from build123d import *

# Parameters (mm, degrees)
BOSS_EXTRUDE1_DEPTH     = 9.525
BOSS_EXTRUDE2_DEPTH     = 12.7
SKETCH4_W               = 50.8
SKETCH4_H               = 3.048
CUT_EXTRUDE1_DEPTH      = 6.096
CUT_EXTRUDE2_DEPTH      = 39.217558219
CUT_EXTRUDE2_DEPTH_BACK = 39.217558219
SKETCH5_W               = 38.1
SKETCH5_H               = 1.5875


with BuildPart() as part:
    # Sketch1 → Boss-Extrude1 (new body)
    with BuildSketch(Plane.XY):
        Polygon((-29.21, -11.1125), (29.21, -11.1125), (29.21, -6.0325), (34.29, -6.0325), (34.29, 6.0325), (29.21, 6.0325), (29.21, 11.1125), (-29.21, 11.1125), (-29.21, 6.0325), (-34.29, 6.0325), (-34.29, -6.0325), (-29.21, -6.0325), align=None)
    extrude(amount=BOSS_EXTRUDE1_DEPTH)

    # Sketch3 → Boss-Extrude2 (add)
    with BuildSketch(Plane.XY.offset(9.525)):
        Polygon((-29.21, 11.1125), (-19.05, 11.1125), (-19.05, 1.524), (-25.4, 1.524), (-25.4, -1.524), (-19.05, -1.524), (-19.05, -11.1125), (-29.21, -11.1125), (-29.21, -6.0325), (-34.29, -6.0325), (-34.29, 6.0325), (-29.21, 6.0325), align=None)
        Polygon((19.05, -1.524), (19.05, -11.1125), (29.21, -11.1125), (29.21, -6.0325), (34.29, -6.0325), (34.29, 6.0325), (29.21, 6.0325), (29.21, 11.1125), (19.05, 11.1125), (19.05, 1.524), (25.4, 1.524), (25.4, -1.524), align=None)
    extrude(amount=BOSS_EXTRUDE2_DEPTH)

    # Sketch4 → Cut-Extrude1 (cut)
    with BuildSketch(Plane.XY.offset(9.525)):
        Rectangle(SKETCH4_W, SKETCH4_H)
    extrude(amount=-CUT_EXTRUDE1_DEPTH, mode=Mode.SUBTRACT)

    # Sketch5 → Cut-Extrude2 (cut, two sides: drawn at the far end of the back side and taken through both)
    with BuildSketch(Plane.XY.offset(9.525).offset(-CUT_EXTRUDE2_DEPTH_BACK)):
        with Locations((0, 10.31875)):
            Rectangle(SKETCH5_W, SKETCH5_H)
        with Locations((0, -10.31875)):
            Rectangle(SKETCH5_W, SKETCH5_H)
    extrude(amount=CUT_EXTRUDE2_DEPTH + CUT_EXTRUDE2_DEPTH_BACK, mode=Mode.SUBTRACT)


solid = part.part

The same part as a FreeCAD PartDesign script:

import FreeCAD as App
import Part
import Sketcher
Q = App.Units.Quantity


def add_polygon(sketch, points):
    """Adds a closed chain of lines whose ends are joined by coincident constraints."""
    first, n = sketch.GeometryCount, len(points)
    for a, b in zip(points, points[1:] + points[:1]):
        sketch.addGeometry(Part.LineSegment(App.Vector(*a, 0), App.Vector(*b, 0)), False)
    for i in range(n):
        sketch.addConstraint(Sketcher.Constraint("Coincident", first + i, 2, first + (i + 1) % n, 1))

doc = App.newDocument("Part")
body = doc.addObject("PartDesign::Body", "Body")

sketch1 = body.newObject("Sketcher::SketchObject", "Sketch")
sketch1.AttachmentSupport = (doc.getObject("XY_Plane"), [""])
sketch1.MapMode = "FlatFace"
add_polygon(sketch1, [(-29, -11), (29, -11), (29, -6), (34, -6), (34, 6), (29, 6), (29, 11), (-29, 11), (-29, 6), (-34, 6), (-34, -6), (-29, -6)])
sketch1.addConstraint(Sketcher.Constraint("Horizontal", 0))
sketch1.addConstraint(Sketcher.Constraint("Vertical", 1))
sketch1.addConstraint(Sketcher.Constraint("Horizontal", 2))
sketch1.addConstraint(Sketcher.Constraint("Vertical", 3))
sketch1.addConstraint(Sketcher.Constraint("Horizontal", 4))
sketch1.addConstraint(Sketcher.Constraint("Vertical", 5))
sketch1.addConstraint(Sketcher.Constraint("Horizontal", 6))
sketch1.addConstraint(Sketcher.Constraint("Vertical", 7))
sketch1.addConstraint(Sketcher.Constraint("Horizontal", 8))
sketch1.addConstraint(Sketcher.Constraint("Vertical", 9))
sketch1.addConstraint(Sketcher.Constraint("Horizontal", 10))
sketch1.addConstraint(Sketcher.Constraint("Vertical", 11))
sketch1.addConstraint(Sketcher.Constraint("Symmetric", 0, 2, 6, 2, -1, 1))
sketch1.addConstraint(Sketcher.Constraint("Symmetric", 2, 2, 8, 2, -1, 1))
sketch1.addConstraint(Sketcher.Constraint("Symmetric", 4, 2, 10, 2, -1, 1))
sketch1.addConstraint(Sketcher.Constraint("Symmetric", 4, 2, 7, 2, -2))
sketch1.addConstraint(Sketcher.Constraint("Equal", 10, 1))
sketch1.addConstraint(Sketcher.Constraint("DistanceX", 0, 1, 0, 2, Q("2.3 in")))
sketch1.addConstraint(Sketcher.Constraint("DistanceX", 2, 1, 2, 2, Q("0.2 in")))
sketch1.addConstraint(Sketcher.Constraint("DistanceY", 3, 1, 3, 2, Q("0.475 in")))
pad1 = body.newObject("PartDesign::Pad", "Pad")
pad1.Profile = sketch1
pad1.Length = Q("0.375 in")

sketch2 = body.newObject("Sketcher::SketchObject", "Sketch001")
sketch2.AttachmentSupport = (doc.getObject("XY_Plane"), [""])
sketch2.MapMode = "FlatFace"
sketch2.AttachmentOffset = App.Placement(App.Vector(0, 0, 0.375 * 25.4), App.Rotation())
add_polygon(sketch2, [(-19.1, 11.1), (-29.2, 11.1), (-29.2, 6), (-34.3, 6), (-34.3, -6), (-29.2, -6), (-29.2, -11.1), (-19.1, -11.1), (-19.1, -1.5), (-25.4, -1.5), (-25.4, 1.5), (-19.1, 1.5)])
add_polygon(sketch2, [(19.1, -1.5), (19.1, -11.1), (29.2, -11.1), (29.2, -6), (34.3, -6), (34.3, 6), (29.2, 6), (29.2, 11.1), (19.1, 11.1), (19.1, 1.5), (25.4, 1.5), (25.4, -1.5)])
sketch2.addConstraint(Sketcher.Constraint("Horizontal", 0))
sketch2.addConstraint(Sketcher.Constraint("Vertical", 1))
sketch2.addConstraint(Sketcher.Constraint("Horizontal", 2))
sketch2.addConstraint(Sketcher.Constraint("Vertical", 3))
sketch2.addConstraint(Sketcher.Constraint("Horizontal", 4))
sketch2.addConstraint(Sketcher.Constraint("Vertical", 5))
sketch2.addConstraint(Sketcher.Constraint("Horizontal", 6))
sketch2.addConstraint(Sketcher.Constraint("Vertical", 7))
sketch2.addConstraint(Sketcher.Constraint("Horizontal", 8))
sketch2.addConstraint(Sketcher.Constraint("Vertical", 9))
sketch2.addConstraint(Sketcher.Constraint("Horizontal", 10))
sketch2.addConstraint(Sketcher.Constraint("Vertical", 11))
sketch2.addConstraint(Sketcher.Constraint("Vertical", 12))
sketch2.addConstraint(Sketcher.Constraint("Horizontal", 13))
sketch2.addConstraint(Sketcher.Constraint("Vertical", 14))
sketch2.addConstraint(Sketcher.Constraint("Horizontal", 15))
sketch2.addConstraint(Sketcher.Constraint("Vertical", 16))
sketch2.addConstraint(Sketcher.Constraint("Horizontal", 17))
sketch2.addConstraint(Sketcher.Constraint("Vertical", 18))
sketch2.addConstraint(Sketcher.Constraint("Horizontal", 19))
sketch2.addConstraint(Sketcher.Constraint("Vertical", 20))
sketch2.addConstraint(Sketcher.Constraint("Horizontal", 21))
sketch2.addConstraint(Sketcher.Constraint("Vertical", 22))
sketch2.addConstraint(Sketcher.Constraint("Horizontal", 23))
sketch2.addConstraint(Sketcher.Constraint("Symmetric", 11, 2, 12, 2, -1, 1))
sketch2.addConstraint(Sketcher.Constraint("Symmetric", 1, 2, 14, 2, -1, 1))
sketch2.addConstraint(Sketcher.Constraint("Symmetric", 3, 2, 16, 2, -1, 1))
sketch2.addConstraint(Sketcher.Constraint("Symmetric", 5, 2, 18, 2, -1, 1))
sketch2.addConstraint(Sketcher.Constraint("Symmetric", 7, 2, 20, 2, -1, 1))
sketch2.addConstraint(Sketcher.Constraint("Symmetric", 9, 2, 22, 2, -1, 1))
sketch2.addConstraint(Sketcher.Constraint("Symmetric", 6, 2, 12, 2, -2))
sketch2.addConstraint(Sketcher.Constraint("Symmetric", 4, 2, 14, 2, -2))
sketch2.addConstraint(Sketcher.Constraint("Horizontal", 10, 2, 20, 2))
sketch2.addConstraint(Sketcher.Constraint("Equal", 17, 1))
sketch2.addConstraint(Sketcher.Constraint("DistanceX", 0, 2, 0, 1, Q("0.4 in")))
sketch2.addConstraint(Sketcher.Constraint("DistanceX", 2, 2, 2, 1, Q("0.2 in")))
sketch2.addConstraint(Sketcher.Constraint("DistanceX", 8, 2, -1, 1, Q("1 in")))
sketch2.addConstraint(Sketcher.Constraint("DistanceX", 8, 2, 8, 1, Q("0.25 in")))
sketch2.addConstraint(Sketcher.Constraint("DistanceY", 9, 1, 9, 2, Q("0.12 in")))
sketch2.addConstraint(Sketcher.Constraint("DistanceY", 3, 2, 3, 1, Q("0.475 in")))
pad2 = body.newObject("PartDesign::Pad", "Pad001")
pad2.Profile = sketch2
pad2.Length = Q("0.5 in")

sketch3 = body.newObject("Sketcher::SketchObject", "Sketch002")
sketch3.AttachmentSupport = (doc.getObject("XY_Plane"), [""])
sketch3.MapMode = "FlatFace"
sketch3.AttachmentOffset = App.Placement(App.Vector(0, 0, 0.375 * 25.4), App.Rotation())
add_polygon(sketch3, [(-25.4, 1.5), (-25.4, -1.5), (25.4, -1.5), (25.4, 1.5)])
sketch3.addConstraint(Sketcher.Constraint("Vertical", 0))
sketch3.addConstraint(Sketcher.Constraint("Horizontal", 1))
sketch3.addConstraint(Sketcher.Constraint("Vertical", 2))
sketch3.addConstraint(Sketcher.Constraint("Horizontal", 3))
sketch3.addConstraint(Sketcher.Constraint("Symmetric", 0, 2, 2, 2, -1, 1))
sketch3.addConstraint(Sketcher.Constraint("DistanceX", 1, 1, 1, 2, Q("2 in")))
sketch3.addConstraint(Sketcher.Constraint("DistanceY", 0, 2, 0, 1, Q("0.12 in")))
pocket1 = body.newObject("PartDesign::Pocket", "Pocket")
pocket1.Profile = sketch3
pocket1.Length = Q("0.24 in")

sketch4 = body.newObject("Sketcher::SketchObject", "Sketch003")
sketch4.AttachmentSupport = (doc.getObject("XY_Plane"), [""])
sketch4.MapMode = "FlatFace"
sketch4.AttachmentOffset = App.Placement(App.Vector(0, 0, 0.375 * 25.4), App.Rotation())
add_polygon(sketch4, [(-19.1, 11.1), (-19.1, 9.5), (19.1, 9.5), (19.1, 11.1)])
add_polygon(sketch4, [(-19.1, -9.5), (-19.1, -11.1), (19.1, -11.1), (19.1, -9.5)])
sketch4.addConstraint(Sketcher.Constraint("Vertical", 0))
sketch4.addConstraint(Sketcher.Constraint("Horizontal", 1))
sketch4.addConstraint(Sketcher.Constraint("Vertical", 2))
sketch4.addConstraint(Sketcher.Constraint("Horizontal", 3))
sketch4.addConstraint(Sketcher.Constraint("Vertical", 4))
sketch4.addConstraint(Sketcher.Constraint("Horizontal", 5))
sketch4.addConstraint(Sketcher.Constraint("Vertical", 6))
sketch4.addConstraint(Sketcher.Constraint("Horizontal", 7))
sketch4.addConstraint(Sketcher.Constraint("Symmetric", 2, 2, 4, 2, -1, 1))
sketch4.addConstraint(Sketcher.Constraint("Symmetric", 0, 2, 6, 2, -1, 1))
sketch4.addConstraint(Sketcher.Constraint("Vertical", 3, 2, 4, 2))
sketch4.addConstraint(Sketcher.Constraint("DistanceX", 1, 1, 1, 2, Q("1.5 in")))
sketch4.addConstraint(Sketcher.Constraint("DistanceY", 0, 2, 0, 1, Q("0.0625 in")))
sketch4.addConstraint(Sketcher.Constraint("DistanceY", 6, 2, 1, 2, Q("0.75 in")))
pocket2 = body.newObject("PartDesign::Pocket", "Pocket001")
pocket2.Profile = sketch4
pocket2.Type = "ThroughAll"
pocket2.Midplane = True

doc.recompute()
